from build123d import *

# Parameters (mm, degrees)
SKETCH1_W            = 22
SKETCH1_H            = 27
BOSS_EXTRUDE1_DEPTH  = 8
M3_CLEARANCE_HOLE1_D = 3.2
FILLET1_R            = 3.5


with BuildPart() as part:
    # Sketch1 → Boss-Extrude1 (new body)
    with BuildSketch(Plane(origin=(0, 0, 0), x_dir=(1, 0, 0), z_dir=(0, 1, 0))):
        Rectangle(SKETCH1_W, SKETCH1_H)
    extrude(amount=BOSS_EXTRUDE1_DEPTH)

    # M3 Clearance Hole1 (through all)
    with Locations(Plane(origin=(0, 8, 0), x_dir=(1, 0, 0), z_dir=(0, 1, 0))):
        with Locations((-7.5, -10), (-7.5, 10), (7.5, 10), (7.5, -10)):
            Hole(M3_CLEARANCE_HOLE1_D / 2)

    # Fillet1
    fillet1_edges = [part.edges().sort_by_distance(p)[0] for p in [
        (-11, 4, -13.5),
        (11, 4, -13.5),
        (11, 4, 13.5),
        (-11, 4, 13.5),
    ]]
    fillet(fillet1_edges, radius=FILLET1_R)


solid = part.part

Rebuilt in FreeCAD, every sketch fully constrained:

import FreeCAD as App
import Part
import Sketcher


def edges_at(feature, points):
    """Names of the edges that pass closest to the given points."""
    edges = feature.Shape.Edges
    near = lambda p: min(range(len(edges)), key=lambda i: edges[i].distToShape(Part.Vertex(*p))[0])
    return sorted({f"Edge{near(p) + 1}" for p in points})

doc = App.newDocument("Part")
params = doc.addObject("Spreadsheet::Sheet", "Params")
for row, (alias, value) in enumerate([
    ("sketch1_width", "22 mm"),
    ("sketch1_height", "27 mm"),
    ("pad1_length", "8 mm"),
    ("sketch2_diameter", "3.2 mm"),
    ("hole_diameter", "3.2 mm"),
    ("fillet_radius", "3.5 mm"),
], start=1):
    params.set(f"A{row}", alias)
    params.set(f"B{row}", "=" + value)
    params.setAlias(f"B{row}", alias)

body = doc.addObject("PartDesign::Body", "Body")

# Sketch on XZ plane
sketch1 = doc.addObject("Sketcher::SketchObject", "Sketch")
body.addObject(sketch1)
sketch1.AttachmentSupport = (doc.XZ_Plane, [""])
sketch1.MapMode = "FlatFace"
sketch1.addGeometry([
    Part.LineSegment(App.Vector(-11, -13.5, 0), App.Vector(-11, 13.5, 0)),
    Part.LineSegment(App.Vector(-11, 13.5, 0), App.Vector(11, 13.5, 0)),
    Part.LineSegment(App.Vector(11, 13.5, 0), App.Vector(11, -13.5, 0)),
    Part.LineSegment(App.Vector(11, -13.5, 0), App.Vector(-11, -13.5, 0)),
], False)
sketch1.addConstraint([
    Sketcher.Constraint("Coincident", 0, 2, 1, 1),
    Sketcher.Constraint("Coincident", 1, 2, 2, 1),
    Sketcher.Constraint("Coincident", 2, 2, 3, 1),
    Sketcher.Constraint("Coincident", 3, 2, 0, 1),
    Sketcher.Constraint("Vertical", 0),
    Sketcher.Constraint("Horizontal", 1),
    Sketcher.Constraint("Vertical", 2),
    Sketcher.Constraint("Horizontal", 3),
    Sketcher.Constraint("Symmetric", 0, 2, 2, 2, -1, 1),
    Sketcher.Constraint("DistanceX", 1, 1, 1, 2, 22.0),
    Sketcher.Constraint("DistanceY", 0, 1, 0, 2, 27.0),
])
sketch1.setExpression("Constraints[9]", "Params.sketch1_width")
sketch1.setExpression("Constraints[10]", "Params.sketch1_height")
pad1 = doc.addObject("PartDesign::Pad", "Pad")
body.addObject(pad1)
pad1.Profile = sketch1
pad1.setExpression("Length", "Params.pad1_length")
pad1.Reversed = True

# Sketch on XZ plane
sketch2 = doc.addObject("Sketcher::SketchObject", "Sketch001")
body.addObject(sketch2)
sketch2.AttachmentSupport = (doc.XZ_Plane, [""])
sketch2.MapMode = "FlatFace"
sketch2.AttachmentOffset = App.Placement(App.Vector(0, 0, -8), App.Rotation())
sketch2.addGeometry([
    Part.Circle(App.Vector(-7.5, 10, 0), App.Vector(0, 0, 1), 1.6),
    Part.Circle(App.Vector(-7.5, -10, 0), App.Vector(0, 0, 1), 1.6),
    Part.Circle(App.Vector(7.5, -10, 0), App.Vector(0, 0, 1), 1.6),
    Part.Circle(App.Vector(7.5, 10, 0), App.Vector(0, 0, 1), 1.6),
], False)
sketch2.addConstraint([
    Sketcher.Constraint("Equal", 0, 1),
    Sketcher.Constraint("Equal", 1, 2),
    Sketcher.Constraint("Equal", 2, 3),
    Sketcher.Constraint("Symmetric", 0, 3, 2, 3, -1, 1),
    Sketcher.Constraint("Symmetric", 1, 3, 3, 3, -1, 1),
    Sketcher.Constraint("Symmetric", 1, 3, 2, 3, -2),
    Sketcher.Constraint("Diameter", 0, 3.2),
    Sketcher.Constraint("DistanceY", -1, 1, 0, 3, 10.0),
    Sketcher.Constraint("DistanceX", 1, 3, 2, 3, 15.0),
])
sketch2.setExpression("Constraints[6]", "Params.sketch2_diameter")
doc.recompute()
hole = doc.addObject("PartDesign::Hole", "Hole")
body.addObject(hole)
hole.Profile = sketch2
hole.ThreadType = "None"
hole.setExpression("Diameter", "Params.hole_diameter")
hole.DepthType = "ThroughAll"
hole.Reversed = True
doc.recompute()

fillet = doc.addObject("PartDesign::Fillet", "Fillet")
body.addObject(fillet)
fillet.Base = (hole, edges_at(hole, [
    (-11, 4, -13.5),
    (11, 4, -13.5),
    (11, 4, 13.5),
    (-11, 4, 13.5),
]))
fillet.setExpression("Radius", "Params.fillet_radius")

doc.recompute()
